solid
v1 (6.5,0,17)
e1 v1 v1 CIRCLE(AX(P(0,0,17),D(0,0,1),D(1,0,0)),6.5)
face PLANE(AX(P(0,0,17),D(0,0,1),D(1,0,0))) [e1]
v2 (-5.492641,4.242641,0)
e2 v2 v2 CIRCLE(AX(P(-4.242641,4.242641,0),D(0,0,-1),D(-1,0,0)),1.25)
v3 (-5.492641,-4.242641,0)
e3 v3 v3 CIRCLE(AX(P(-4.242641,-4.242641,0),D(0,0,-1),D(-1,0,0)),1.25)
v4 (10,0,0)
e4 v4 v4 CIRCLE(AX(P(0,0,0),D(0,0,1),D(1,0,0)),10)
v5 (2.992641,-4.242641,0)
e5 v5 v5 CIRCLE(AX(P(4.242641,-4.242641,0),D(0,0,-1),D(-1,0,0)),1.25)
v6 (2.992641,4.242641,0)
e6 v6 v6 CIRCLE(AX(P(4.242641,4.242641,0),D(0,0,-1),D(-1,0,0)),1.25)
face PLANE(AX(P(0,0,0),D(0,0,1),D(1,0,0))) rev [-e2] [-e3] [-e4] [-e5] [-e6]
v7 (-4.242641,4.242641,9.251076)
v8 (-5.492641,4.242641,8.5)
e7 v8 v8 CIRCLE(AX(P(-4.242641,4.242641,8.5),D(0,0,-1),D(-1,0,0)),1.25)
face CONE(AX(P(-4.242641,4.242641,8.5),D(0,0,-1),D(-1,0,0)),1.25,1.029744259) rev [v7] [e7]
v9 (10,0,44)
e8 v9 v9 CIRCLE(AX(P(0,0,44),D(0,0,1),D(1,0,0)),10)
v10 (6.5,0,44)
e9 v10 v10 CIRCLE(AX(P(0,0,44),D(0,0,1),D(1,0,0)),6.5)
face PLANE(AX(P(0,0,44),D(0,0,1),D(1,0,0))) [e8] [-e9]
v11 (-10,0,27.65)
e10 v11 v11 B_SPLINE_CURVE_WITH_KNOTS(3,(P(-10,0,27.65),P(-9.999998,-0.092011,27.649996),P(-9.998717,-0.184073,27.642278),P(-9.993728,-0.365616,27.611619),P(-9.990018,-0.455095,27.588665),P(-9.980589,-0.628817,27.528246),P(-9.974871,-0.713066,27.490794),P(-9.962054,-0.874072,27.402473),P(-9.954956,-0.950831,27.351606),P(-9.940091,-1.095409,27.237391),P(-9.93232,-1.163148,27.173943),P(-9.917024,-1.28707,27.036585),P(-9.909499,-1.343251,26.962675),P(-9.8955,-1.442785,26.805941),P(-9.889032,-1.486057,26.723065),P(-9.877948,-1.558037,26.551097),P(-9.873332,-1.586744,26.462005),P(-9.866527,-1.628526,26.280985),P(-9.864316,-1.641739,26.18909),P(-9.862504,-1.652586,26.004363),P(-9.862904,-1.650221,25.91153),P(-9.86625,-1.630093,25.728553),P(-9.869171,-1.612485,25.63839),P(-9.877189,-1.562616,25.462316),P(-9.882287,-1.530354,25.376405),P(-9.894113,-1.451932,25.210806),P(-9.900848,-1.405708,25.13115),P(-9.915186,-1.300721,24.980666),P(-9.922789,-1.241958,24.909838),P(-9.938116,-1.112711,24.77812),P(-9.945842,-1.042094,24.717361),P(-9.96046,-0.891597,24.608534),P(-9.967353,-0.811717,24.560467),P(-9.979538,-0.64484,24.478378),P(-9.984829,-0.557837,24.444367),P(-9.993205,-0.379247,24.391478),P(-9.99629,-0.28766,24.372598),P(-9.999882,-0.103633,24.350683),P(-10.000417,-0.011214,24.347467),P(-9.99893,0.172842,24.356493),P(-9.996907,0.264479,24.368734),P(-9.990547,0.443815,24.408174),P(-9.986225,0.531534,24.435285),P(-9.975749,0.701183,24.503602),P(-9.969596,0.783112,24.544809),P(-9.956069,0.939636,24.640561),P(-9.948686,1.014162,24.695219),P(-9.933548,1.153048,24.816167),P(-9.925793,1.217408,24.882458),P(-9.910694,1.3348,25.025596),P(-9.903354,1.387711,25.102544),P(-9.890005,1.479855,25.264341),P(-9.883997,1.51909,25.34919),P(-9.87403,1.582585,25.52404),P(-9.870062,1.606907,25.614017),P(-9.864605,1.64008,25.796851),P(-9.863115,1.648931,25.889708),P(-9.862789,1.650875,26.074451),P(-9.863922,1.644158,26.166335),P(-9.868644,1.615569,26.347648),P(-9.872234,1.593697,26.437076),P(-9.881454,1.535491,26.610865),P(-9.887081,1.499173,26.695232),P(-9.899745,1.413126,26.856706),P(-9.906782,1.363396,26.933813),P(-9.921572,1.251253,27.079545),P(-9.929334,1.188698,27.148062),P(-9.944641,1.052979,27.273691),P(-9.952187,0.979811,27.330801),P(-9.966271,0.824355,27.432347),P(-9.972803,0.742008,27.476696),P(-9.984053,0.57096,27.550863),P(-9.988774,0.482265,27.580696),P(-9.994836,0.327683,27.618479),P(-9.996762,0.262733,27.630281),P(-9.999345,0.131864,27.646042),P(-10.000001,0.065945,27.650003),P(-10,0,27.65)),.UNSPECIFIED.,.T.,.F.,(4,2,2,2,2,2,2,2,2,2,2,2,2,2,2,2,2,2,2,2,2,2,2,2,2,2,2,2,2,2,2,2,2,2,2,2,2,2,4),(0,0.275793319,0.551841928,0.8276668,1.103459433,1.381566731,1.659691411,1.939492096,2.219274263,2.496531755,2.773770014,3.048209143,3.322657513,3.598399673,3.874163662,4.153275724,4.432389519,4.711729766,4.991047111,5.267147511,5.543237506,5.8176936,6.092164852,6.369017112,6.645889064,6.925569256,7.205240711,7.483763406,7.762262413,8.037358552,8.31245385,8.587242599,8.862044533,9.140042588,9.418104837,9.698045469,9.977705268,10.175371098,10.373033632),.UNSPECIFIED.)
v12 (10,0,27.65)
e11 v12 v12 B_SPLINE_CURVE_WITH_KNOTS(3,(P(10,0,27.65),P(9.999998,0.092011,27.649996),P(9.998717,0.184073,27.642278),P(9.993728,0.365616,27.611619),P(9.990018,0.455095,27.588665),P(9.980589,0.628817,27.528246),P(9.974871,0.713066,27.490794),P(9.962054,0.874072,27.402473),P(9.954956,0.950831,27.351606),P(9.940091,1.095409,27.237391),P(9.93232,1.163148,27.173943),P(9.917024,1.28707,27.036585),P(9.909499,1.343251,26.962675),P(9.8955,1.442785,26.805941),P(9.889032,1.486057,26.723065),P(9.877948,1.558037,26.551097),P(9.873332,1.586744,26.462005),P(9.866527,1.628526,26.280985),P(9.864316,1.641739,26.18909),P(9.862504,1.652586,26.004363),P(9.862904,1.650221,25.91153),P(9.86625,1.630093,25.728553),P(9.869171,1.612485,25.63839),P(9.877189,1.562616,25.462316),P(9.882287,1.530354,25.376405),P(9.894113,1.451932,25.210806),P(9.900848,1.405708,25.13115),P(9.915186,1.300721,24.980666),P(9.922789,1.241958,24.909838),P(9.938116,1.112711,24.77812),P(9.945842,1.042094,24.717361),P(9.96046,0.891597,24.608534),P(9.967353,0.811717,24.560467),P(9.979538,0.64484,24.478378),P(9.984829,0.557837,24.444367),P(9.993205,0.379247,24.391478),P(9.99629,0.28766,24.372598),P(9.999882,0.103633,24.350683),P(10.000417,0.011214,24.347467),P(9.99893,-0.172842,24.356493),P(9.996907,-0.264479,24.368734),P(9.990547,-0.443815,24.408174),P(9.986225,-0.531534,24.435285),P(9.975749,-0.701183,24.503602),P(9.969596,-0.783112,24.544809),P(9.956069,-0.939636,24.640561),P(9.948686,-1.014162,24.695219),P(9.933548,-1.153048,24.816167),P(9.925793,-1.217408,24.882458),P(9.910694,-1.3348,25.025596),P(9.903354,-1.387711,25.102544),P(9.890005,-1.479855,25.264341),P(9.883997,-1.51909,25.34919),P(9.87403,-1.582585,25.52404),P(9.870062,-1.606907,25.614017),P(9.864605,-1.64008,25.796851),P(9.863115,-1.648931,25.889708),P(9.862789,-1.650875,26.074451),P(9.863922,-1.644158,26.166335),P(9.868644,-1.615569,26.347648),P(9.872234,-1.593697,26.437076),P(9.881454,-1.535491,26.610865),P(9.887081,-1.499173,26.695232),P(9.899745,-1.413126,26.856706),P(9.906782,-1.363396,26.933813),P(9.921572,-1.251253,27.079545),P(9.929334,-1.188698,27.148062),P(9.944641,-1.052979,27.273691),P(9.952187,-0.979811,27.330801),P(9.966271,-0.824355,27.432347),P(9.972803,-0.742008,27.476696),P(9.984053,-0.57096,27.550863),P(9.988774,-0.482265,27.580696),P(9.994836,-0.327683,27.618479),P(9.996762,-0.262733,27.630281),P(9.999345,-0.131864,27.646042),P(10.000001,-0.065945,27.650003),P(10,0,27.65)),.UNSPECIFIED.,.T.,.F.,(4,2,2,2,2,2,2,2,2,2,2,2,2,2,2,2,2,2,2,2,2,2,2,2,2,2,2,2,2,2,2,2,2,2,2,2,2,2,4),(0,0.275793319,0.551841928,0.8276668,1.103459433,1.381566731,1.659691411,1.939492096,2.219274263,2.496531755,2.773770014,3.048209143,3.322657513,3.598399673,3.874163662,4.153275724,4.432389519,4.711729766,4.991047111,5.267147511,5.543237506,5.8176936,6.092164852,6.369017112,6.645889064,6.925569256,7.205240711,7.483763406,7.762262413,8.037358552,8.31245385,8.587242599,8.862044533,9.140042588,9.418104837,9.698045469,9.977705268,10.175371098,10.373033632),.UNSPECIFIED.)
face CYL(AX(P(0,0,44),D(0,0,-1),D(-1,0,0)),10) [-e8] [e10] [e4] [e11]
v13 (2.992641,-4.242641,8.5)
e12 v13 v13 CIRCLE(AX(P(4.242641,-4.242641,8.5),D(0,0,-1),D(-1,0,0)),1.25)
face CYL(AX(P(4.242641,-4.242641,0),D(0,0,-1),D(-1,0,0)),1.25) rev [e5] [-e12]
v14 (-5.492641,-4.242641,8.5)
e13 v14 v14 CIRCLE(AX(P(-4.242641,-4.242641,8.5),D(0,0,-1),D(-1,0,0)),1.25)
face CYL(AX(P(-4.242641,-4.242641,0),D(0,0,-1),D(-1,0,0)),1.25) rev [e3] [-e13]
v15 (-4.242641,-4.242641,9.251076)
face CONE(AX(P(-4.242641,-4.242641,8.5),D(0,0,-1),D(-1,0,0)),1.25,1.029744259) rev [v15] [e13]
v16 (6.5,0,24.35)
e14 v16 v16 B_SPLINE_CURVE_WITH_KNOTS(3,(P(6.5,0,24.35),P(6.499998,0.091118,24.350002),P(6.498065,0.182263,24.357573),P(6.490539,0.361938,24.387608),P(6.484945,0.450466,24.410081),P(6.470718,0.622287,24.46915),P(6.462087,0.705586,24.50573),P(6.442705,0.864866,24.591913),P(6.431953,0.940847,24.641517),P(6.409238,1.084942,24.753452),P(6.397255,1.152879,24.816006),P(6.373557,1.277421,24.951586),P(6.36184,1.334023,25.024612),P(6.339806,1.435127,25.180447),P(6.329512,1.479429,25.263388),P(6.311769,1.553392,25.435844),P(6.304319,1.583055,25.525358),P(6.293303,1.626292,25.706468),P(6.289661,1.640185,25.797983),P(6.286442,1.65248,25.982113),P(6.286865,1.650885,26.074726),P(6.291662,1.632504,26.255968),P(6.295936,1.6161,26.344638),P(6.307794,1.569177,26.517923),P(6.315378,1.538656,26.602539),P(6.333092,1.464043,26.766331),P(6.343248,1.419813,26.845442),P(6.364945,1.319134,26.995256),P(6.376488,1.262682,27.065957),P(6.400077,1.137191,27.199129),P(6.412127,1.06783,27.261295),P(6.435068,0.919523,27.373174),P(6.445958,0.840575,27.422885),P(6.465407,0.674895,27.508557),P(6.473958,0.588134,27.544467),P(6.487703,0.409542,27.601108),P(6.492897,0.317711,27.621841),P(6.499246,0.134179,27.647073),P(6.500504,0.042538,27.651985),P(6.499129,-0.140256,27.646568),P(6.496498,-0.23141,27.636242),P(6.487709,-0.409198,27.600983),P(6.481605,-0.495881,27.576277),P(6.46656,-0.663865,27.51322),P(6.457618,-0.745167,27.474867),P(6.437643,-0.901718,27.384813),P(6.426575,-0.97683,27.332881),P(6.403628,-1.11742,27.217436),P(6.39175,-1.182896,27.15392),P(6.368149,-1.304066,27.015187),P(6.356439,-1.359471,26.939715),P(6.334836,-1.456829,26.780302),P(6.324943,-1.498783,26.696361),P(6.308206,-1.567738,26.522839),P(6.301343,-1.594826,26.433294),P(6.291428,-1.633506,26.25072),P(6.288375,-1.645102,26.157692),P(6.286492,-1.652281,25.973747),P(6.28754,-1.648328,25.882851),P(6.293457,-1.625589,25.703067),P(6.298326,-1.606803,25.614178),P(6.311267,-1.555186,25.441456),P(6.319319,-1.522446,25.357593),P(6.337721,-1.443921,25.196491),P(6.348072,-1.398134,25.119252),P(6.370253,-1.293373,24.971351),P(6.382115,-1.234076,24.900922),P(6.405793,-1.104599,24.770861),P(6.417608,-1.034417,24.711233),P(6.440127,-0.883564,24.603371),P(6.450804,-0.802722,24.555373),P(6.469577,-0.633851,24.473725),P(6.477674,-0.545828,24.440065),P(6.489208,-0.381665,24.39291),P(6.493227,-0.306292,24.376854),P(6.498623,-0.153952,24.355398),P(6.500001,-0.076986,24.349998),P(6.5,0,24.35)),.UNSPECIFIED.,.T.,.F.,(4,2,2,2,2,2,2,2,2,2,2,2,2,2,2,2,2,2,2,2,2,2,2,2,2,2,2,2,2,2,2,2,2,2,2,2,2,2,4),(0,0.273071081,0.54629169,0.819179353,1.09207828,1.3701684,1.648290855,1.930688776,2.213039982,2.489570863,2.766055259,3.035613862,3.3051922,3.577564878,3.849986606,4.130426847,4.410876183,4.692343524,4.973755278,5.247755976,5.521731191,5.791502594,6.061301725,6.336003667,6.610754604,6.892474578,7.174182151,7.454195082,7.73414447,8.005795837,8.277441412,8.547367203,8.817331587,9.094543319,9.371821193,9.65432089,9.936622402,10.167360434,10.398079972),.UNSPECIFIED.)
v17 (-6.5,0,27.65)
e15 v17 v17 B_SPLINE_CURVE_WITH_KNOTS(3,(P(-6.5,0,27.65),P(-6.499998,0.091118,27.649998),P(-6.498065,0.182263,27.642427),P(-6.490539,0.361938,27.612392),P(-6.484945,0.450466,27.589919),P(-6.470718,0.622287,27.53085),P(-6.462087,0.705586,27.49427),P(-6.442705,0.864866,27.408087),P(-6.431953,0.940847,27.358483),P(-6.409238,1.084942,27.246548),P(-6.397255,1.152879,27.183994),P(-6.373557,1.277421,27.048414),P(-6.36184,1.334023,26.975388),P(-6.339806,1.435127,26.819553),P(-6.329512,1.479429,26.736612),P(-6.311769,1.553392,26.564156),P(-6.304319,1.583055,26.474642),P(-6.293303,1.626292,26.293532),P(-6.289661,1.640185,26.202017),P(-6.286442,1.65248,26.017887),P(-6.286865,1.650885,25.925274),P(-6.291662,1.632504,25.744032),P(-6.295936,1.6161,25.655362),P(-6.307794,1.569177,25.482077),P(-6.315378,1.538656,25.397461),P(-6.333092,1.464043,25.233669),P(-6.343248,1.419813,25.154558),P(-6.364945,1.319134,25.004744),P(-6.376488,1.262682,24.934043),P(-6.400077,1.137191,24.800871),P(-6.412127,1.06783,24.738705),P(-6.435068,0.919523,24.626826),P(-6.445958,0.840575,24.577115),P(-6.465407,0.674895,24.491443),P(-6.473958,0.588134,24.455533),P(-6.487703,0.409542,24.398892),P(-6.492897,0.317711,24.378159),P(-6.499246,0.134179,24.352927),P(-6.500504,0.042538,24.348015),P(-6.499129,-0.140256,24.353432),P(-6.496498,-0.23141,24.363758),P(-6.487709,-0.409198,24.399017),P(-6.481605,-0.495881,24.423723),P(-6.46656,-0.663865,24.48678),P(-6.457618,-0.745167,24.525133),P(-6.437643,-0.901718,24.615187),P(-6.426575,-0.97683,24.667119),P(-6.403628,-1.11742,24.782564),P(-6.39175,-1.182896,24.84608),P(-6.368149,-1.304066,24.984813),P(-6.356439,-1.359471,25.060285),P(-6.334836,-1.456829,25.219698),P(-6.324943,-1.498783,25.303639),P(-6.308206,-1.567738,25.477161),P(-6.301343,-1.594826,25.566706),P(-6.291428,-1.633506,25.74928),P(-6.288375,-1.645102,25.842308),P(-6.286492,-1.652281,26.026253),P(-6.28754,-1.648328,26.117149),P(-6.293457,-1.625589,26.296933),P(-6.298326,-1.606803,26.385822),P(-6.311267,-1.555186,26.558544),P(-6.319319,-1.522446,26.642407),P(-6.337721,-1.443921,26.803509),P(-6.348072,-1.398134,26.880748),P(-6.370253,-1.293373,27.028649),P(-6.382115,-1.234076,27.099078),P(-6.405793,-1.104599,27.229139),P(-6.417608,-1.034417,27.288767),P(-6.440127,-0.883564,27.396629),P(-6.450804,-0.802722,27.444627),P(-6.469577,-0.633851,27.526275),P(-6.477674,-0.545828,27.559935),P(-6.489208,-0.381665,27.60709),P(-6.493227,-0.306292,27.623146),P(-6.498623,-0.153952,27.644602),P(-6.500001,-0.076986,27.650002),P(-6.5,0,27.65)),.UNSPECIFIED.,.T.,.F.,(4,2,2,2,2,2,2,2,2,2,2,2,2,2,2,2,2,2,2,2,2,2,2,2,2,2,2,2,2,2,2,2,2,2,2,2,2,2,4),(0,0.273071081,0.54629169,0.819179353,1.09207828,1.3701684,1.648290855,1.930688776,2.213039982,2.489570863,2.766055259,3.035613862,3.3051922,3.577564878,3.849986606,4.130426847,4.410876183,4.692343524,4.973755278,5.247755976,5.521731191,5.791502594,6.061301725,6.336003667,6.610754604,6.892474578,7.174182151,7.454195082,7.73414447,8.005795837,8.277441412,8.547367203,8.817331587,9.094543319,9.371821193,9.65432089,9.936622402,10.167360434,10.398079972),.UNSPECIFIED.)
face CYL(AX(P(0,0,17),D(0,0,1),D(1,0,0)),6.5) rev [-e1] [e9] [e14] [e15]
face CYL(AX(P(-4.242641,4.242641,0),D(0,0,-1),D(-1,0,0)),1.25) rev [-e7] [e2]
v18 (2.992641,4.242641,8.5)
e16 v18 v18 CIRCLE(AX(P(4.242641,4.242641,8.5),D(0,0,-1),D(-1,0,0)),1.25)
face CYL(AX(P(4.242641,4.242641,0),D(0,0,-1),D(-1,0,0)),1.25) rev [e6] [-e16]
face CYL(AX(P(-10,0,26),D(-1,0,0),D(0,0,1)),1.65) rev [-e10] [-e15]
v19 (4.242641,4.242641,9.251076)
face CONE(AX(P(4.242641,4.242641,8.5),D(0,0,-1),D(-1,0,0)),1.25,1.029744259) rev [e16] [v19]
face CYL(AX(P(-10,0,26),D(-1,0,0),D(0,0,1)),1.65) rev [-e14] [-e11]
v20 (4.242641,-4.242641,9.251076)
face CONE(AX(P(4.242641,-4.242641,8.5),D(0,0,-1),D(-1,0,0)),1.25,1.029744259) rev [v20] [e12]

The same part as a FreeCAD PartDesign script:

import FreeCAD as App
import Part
import Sketcher

V = App.Vector
Q = App.Units.Quantity

doc = App.newDocument("Part")
body = doc.addObject("PartDesign::Body", "Body")

# Sketch on XY plane
sketch1 = body.newObject("Sketcher::SketchObject", "Sketch")
sketch1.AttachmentSupport = (doc.getObject("XY_Plane"), [""])
sketch1.MapMode = "FlatFace"
sketch1.addGeometry(Part.Circle(V(0, 0, 0), V(0, 0, 1), 10), False)
sketch1.addConstraint(Sketcher.Constraint("Coincident", 0, 3, -1, 1))
sketch1.addConstraint(Sketcher.Constraint("Diameter", 0, Q("20 mm")))
pad1 = body.newObject("PartDesign::Pad", "Pad")
pad1.Profile = sketch1
pad1.Length = 44

# Sketch on XY plane
sketch2 = body.newObject("Sketcher::SketchObject", "Sketch001")
sketch2.AttachmentSupport = (doc.getObject("XY_Plane"), [""])
sketch2.MapMode = "FlatFace"
sketch2.AttachmentOffset = App.Placement(V(0, 0, 44), App.Rotation())
sketch2.addGeometry(Part.Circle(V(0, 0, 0), V(0, 0, 1), 6), False)
sketch2.addConstraint(Sketcher.Constraint("Coincident", 0, 3, -1, 1))
sketch2.addConstraint(Sketcher.Constraint("Diameter", 0, Q("13 mm")))
pocket1 = body.newObject("PartDesign::Pocket", "Pocket")
pocket1.Profile = sketch2
pocket1.Length = 27

# Sketch on YZ plane
sketch3 = body.newObject("Sketcher::SketchObject", "Sketch002")
sketch3.AttachmentSupport = (doc.getObject("YZ_Plane"), [""])
sketch3.MapMode = "FlatFace"
sketch3.AttachmentOffset = App.Placement(V(0, 0, -10), App.Rotation())
sketch3.addGeometry(Part.Circle(V(0, 26, 0), V(0, 0, 1), 1.6), False)
sketch3.addConstraint(Sketcher.Constraint("PointOnObject", 0, 3, -2))
sketch3.addConstraint(Sketcher.Constraint("Diameter", 0, Q("3.3 mm")))
sketch3.addConstraint(Sketcher.Constraint("DistanceY", -1, 1, 0, 3, Q("26 mm")))
doc.recompute()
hole = body.newObject("PartDesign::Hole", "Hole")
hole.Profile = sketch3
hole.ThreadType = "None"
hole.Diameter = 3.3
hole.DepthType = "ThroughAll"
hole.Reversed = True

# Sketch on XY plane
sketch4 = body.newObject("Sketcher::SketchObject", "Sketch003")
sketch4.AttachmentSupport = (doc.getObject("XY_Plane"), [""])
sketch4.MapMode = "FlatFace"
sketch4.addGeometry(Part.Circle(V(4.2, 4.2, 0), V(0, 0, 1), 1.2), False)
sketch4.addGeometry(Part.Circle(V(-4.2, 4.2, 0), V(0, 0, 1), 1.2), False)
sketch4.addGeometry(Part.Circle(V(-4.2, -4.2, 0), V(0, 0, 1), 1.2), False)
sketch4.addGeometry(Part.Circle(V(4.2, -4.2, 0), V(0, 0, 1), 1.2), False)
sketch4.addConstraint(Sketcher.Constraint("Equal", 0, 1))
sketch4.addConstraint(Sketcher.Constraint("Equal", 1, 2))
sketch4.addConstraint(Sketcher.Constraint("Equal", 2, 3))
sketch4.addConstraint(Sketcher.Constraint("Symmetric", 0, 3, 2, 3, -1, 1))
sketch4.addConstraint(Sketcher.Constraint("Symmetric", 1, 3, 3, 3, -1, 1))
sketch4.addConstraint(Sketcher.Constraint("Symmetric", 0, 3, 1, 3, -2))
sketch4.addConstraint(Sketcher.Constraint("Diameter", 0, Q("2.5 mm")))
sketch4.addConstraint(Sketcher.Constraint("DistanceX", -1, 1, 0, 3, Q("4.242641 mm")))
sketch4.addConstraint(Sketcher.Constraint("DistanceY", -1, 1, 0, 3, Q("4.242641 mm")))
doc.recompute()
hole2 = body.newObject("PartDesign::Hole", "Hole001")
hole2.Profile = sketch4
hole2.ThreadType = "None"
hole2.Diameter = 2.5
hole2.DepthType = "Dimension"
hole2.Depth = 8.5
hole2.DrillPoint = "Angled"
hole2.DrillPointAngle = 118
hole2.Reversed = True

doc.recompute()
